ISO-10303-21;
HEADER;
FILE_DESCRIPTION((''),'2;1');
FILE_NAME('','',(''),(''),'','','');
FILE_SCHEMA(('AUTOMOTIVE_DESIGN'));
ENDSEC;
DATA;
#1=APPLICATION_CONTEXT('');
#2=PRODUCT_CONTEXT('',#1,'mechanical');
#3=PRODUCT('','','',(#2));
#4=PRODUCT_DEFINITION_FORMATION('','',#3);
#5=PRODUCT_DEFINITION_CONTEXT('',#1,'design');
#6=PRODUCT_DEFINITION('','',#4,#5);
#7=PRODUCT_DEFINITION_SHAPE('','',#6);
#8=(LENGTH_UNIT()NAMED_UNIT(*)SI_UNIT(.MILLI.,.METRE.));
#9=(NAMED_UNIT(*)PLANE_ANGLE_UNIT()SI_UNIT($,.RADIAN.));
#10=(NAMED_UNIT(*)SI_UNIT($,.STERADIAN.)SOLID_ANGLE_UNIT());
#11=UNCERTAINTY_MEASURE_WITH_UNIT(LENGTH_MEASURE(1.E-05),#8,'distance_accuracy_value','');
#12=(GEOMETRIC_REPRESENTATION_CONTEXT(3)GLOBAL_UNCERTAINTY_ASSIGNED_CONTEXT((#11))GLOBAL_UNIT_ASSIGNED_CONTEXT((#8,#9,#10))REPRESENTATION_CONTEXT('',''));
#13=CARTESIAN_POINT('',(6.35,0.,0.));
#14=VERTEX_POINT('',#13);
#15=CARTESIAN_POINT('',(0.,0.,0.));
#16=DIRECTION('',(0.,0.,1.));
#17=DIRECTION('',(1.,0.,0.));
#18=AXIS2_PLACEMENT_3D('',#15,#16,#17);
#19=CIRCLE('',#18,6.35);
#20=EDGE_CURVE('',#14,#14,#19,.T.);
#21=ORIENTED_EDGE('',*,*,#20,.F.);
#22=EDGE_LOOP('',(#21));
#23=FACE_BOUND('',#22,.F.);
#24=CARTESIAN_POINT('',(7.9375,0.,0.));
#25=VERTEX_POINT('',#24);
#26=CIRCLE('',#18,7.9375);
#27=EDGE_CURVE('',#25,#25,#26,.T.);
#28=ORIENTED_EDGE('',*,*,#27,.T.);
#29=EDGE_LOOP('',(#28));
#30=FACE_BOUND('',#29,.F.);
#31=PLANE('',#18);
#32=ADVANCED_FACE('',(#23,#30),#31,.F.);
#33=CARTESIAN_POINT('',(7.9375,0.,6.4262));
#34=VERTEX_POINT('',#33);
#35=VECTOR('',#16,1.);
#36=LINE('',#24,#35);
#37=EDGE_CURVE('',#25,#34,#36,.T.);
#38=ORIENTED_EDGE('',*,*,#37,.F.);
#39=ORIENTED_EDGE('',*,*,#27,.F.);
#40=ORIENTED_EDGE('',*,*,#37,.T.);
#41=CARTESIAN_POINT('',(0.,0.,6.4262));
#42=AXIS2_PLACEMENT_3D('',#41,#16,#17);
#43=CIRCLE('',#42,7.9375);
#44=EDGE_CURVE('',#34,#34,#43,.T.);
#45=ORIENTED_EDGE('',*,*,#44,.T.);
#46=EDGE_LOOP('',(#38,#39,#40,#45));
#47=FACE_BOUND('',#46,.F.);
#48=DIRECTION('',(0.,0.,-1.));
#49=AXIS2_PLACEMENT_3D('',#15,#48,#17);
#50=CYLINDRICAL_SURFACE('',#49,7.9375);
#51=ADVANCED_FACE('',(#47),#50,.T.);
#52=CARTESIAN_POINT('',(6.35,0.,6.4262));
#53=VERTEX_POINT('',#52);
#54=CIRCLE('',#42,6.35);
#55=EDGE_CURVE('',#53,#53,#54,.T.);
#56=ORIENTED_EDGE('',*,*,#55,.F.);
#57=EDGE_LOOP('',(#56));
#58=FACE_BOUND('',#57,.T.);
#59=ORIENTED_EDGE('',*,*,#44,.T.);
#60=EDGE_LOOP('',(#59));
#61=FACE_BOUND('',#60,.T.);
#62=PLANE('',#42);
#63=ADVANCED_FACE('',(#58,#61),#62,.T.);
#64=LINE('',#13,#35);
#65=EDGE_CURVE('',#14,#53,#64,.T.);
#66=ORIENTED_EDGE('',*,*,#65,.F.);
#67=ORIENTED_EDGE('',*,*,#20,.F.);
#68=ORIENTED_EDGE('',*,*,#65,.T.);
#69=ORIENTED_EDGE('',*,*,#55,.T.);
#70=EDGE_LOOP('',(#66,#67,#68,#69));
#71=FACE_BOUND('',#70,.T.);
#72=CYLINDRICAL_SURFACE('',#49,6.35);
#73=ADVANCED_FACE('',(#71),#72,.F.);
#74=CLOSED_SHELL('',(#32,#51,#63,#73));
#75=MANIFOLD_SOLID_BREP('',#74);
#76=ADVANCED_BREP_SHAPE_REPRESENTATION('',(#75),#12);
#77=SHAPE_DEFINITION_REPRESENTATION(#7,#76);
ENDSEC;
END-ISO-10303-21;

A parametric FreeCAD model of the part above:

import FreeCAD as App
import Part
import Sketcher
Q = App.Units.Quantity

doc = App.newDocument("Part")
params = doc.addObject("Spreadsheet::Sheet", "Params")
for row, (alias, value) in enumerate([
    ("sketch1_diameter", "0.5 in"),
    ("sketch1_diameter2", "0.625 in"),
    ("pad1_length", "0.253 in"),
], start=1):
    params.set(f"A{row}", alias)
    params.set(f"B{row}", "=" + value)
    params.setAlias(f"B{row}", alias)

body = doc.addObject("PartDesign::Body", "Body")

# Sketch on XY plane
sketch1 = body.newObject("Sketcher::SketchObject", "Sketch")
sketch1.AttachmentSupport = (doc.getObject("XY_Plane"), [""])
sketch1.MapMode = "FlatFace"
sketch1.addGeometry([
    Part.Circle(App.Vector(0, 0, 0), App.Vector(0, 0, 1), 8),
    Part.Circle(App.Vector(0, 0, 0), App.Vector(0, 0, 1), 6),
], False)
sketch1.addConstraint([
    Sketcher.Constraint("Coincident", 0, 3, -1, 1),
    Sketcher.Constraint("Coincident", 1, 3, -1, 1),
    Sketcher.Constraint("Diameter", 1, Q("0.5 in")),
    Sketcher.Constraint("Diameter", 0, Q("0.625 in")),
])
sketch1.setExpression("Constraints[2]", "Params.sketch1_diameter")
sketch1.setExpression("Constraints[3]", "Params.sketch1_diameter2")
pad1 = body.newObject("PartDesign::Pad", "Pad")
pad1.Profile = sketch1
pad1.setExpression("Length", "Params.pad1_length")

doc.recompute()
